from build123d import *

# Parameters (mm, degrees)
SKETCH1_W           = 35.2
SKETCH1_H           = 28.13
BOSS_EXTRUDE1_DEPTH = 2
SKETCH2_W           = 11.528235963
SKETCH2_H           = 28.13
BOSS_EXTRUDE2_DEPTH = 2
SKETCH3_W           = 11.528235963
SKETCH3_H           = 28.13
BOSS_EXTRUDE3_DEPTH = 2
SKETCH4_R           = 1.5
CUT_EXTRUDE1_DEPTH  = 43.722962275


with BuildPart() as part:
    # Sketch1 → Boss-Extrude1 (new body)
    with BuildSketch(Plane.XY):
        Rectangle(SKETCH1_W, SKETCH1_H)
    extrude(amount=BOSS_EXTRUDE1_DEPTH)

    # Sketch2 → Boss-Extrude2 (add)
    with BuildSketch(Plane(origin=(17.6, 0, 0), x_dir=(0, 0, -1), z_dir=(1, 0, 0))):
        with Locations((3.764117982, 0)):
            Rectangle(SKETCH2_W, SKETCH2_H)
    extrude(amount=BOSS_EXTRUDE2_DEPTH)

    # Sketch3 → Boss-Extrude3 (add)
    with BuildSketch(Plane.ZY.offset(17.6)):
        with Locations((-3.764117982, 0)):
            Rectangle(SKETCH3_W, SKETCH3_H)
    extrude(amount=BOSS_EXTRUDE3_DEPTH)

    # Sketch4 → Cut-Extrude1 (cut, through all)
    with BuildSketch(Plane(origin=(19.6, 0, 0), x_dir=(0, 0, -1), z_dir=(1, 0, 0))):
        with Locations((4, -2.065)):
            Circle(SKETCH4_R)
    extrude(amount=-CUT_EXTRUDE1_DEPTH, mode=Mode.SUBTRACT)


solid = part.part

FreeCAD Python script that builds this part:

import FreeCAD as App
import Part
import Sketcher
from FreeCAD import Vector

doc = App.newDocument("Part")
params = doc.addObject("Spreadsheet::Sheet", "Params")
for row, (alias, value) in enumerate([
    ("sketch1_width", "35.2 mm"),
    ("sketch1_height", "28.13 mm"),
    ("pad1_length", "2 mm"),
    ("sketch2_width", "28.13 mm"),
    ("pad2_length", "2 mm"),
    ("sketch3_width", "28.13 mm"),
    ("pad3_length", "2 mm"),
    ("sketch4_diameter", "3 mm"),
], start=1):
    params.set(f"A{row}", alias)
    params.set(f"B{row}", "=" + value)
    params.setAlias(f"B{row}", alias)

body = doc.addObject("PartDesign::Body", "Body")

# Sketch on XY plane
sketch1 = body.newObject("Sketcher::SketchObject", "Sketch")
sketch1.AttachmentSupport = (doc.getObject("XY_Plane"), [""])
sketch1.MapMode = "FlatFace"
sketch1.addGeometry(Part.LineSegment(Vector(-18, 14, 0), Vector(-18, -14, 0)), False)
sketch1.addGeometry(Part.LineSegment(Vector(-18, -14, 0), Vector(18, -14, 0)), False)
sketch1.addGeometry(Part.LineSegment(Vector(18, -14, 0), Vector(18, 14, 0)), False)
sketch1.addGeometry(Part.LineSegment(Vector(18, 14, 0), Vector(-18, 14, 0)), False)
sketch1.addConstraint(Sketcher.Constraint("Coincident", 0, 2, 1, 1))
sketch1.addConstraint(Sketcher.Constraint("Coincident", 1, 2, 2, 1))
sketch1.addConstraint(Sketcher.Constraint("Coincident", 2, 2, 3, 1))
sketch1.addConstraint(Sketcher.Constraint("Coincident", 3, 2, 0, 1))
sketch1.addConstraint(Sketcher.Constraint("Vertical", 0))
sketch1.addConstraint(Sketcher.Constraint("Horizontal", 1))
sketch1.addConstraint(Sketcher.Constraint("Vertical", 2))
sketch1.addConstraint(Sketcher.Constraint("Horizontal", 3))
sketch1.addConstraint(Sketcher.Constraint("Symmetric", 0, 2, 2, 2, -1, 1))
sketch1.addConstraint(Sketcher.Constraint("DistanceX", 1, 1, 1, 2, 35.2))
sketch1.addConstraint(Sketcher.Constraint("DistanceY", 0, 2, 0, 1, 28.13))
sketch1.setExpression("Constraints[9]", "Params.sketch1_width")
sketch1.setExpression("Constraints[10]", "Params.sketch1_height")
pad1 = body.newObject("PartDesign::Pad", "Pad")
pad1.Profile = sketch1
pad1.setExpression("Length", "Params.pad1_length")

# Sketch on YZ plane
sketch2 = body.newObject("Sketcher::SketchObject", "Sketch001")
sketch2.AttachmentSupport = (doc.getObject("YZ_Plane"), [""])
sketch2.MapMode = "FlatFace"
sketch2.AttachmentOffset = App.Placement(Vector(0, 0, 17.6), App.Rotation())
sketch2.addGeometry(Part.LineSegment(Vector(14, 2, 0), Vector(-14, 2, 0)), False)
sketch2.addGeometry(Part.LineSegment(Vector(-14, 2, 0), Vector(-14, -10, 0)), False)
sketch2.addGeometry(Part.LineSegment(Vector(-14, -10, 0), Vector(14, -10, 0)), False)
sketch2.addGeometry(Part.LineSegment(Vector(14, -10, 0), Vector(14, 2, 0)), False)
sketch2.addConstraint(Sketcher.Constraint("Coincident", 0, 2, 1, 1))
sketch2.addConstraint(Sketcher.Constraint("Coincident", 1, 2, 2, 1))
sketch2.addConstraint(Sketcher.Constraint("Coincident", 2, 2, 3, 1))
sketch2.addConstraint(Sketcher.Constraint("Coincident", 3, 2, 0, 1))
sketch2.addConstraint(Sketcher.Constraint("Horizontal", 0))
sketch2.addConstraint(Sketcher.Constraint("Vertical", 1))
sketch2.addConstraint(Sketcher.Constraint("Horizontal", 2))
sketch2.addConstraint(Sketcher.Constraint("Vertical", 3))
sketch2.addConstraint(Sketcher.Constraint("DistanceY", -1, 1, 0, 2, 2.0))
sketch2.addConstraint(Sketcher.Constraint("DistanceX", 0, 2, 0, 1, 28.13))
sketch2.addConstraint(Sketcher.Constraint("DistanceX", 0, 2, -1, 1, 14.065))
sketch2.addConstraint(Sketcher.Constraint("DistanceY", 1, 2, 1, 1, 11.528236))
sketch2.setExpression("Constraints[9]", "Params.sketch2_width")
pad2 = body.newObject("PartDesign::Pad", "Pad001")
pad2.Profile = sketch2
pad2.setExpression("Length", "Params.pad2_length")

# Sketch on YZ plane
sketch3 = body.newObject("Sketcher::SketchObject", "Sketch002")
sketch3.AttachmentSupport = (doc.getObject("YZ_Plane"), [""])
sketch3.MapMode = "FlatFace"
sketch3.AttachmentOffset = App.Placement(Vector(0, 0, -17.6), App.Rotation())
sketch3.addGeometry(Part.LineSegment(Vector(14, -10, 0), Vector(-14, -10, 0)), False)
sketch3.addGeometry(Part.LineSegment(Vector(-14, -10, 0), Vector(-14, 2, 0)), False)
sketch3.addGeometry(Part.LineSegment(Vector(-14, 2, 0), Vector(14, 2, 0)), False)
sketch3.addGeometry(Part.LineSegment(Vector(14, 2, 0), Vector(14, -10, 0)), False)
sketch3.addConstraint(Sketcher.Constraint("Coincident", 0, 2, 1, 1))
sketch3.addConstraint(Sketcher.Constraint("Coincident", 1, 2, 2, 1))
sketch3.addConstraint(Sketcher.Constraint("Coincident", 2, 2, 3, 1))
sketch3.addConstraint(Sketcher.Constraint("Coincident", 3, 2, 0, 1))
sketch3.addConstraint(Sketcher.Constraint("Horizontal", 0))
sketch3.addConstraint(Sketcher.Constraint("Vertical", 1))
sketch3.addConstraint(Sketcher.Constraint("Horizontal", 2))
sketch3.addConstraint(Sketcher.Constraint("Vertical", 3))
sketch3.addConstraint(Sketcher.Constraint("DistanceY", -1, 1, 1, 2, 2.0))
sketch3.addConstraint(Sketcher.Constraint("DistanceX", 0, 2, 0, 1, 28.13))
sketch3.addConstraint(Sketcher.Constraint("DistanceX", 0, 2, -1, 1, 14.065))
sketch3.addConstraint(Sketcher.Constraint("DistanceY", 1, 1, 1, 2, 11.528236))
sketch3.setExpression("Constraints[9]", "Params.sketch3_width")
pad3 = body.newObject("PartDesign::Pad", "Pad002")
pad3.Profile = sketch3
pad3.setExpression("Length", "Params.pad3_length")
pad3.Reversed = True

# Sketch on YZ plane
sketch4 = body.newObject("Sketcher::SketchObject", "Sketch003")
sketch4.AttachmentSupport = (doc.getObject("YZ_Plane"), [""])
sketch4.MapMode = "FlatFace"
sketch4.AttachmentOffset = App.Placement(Vector(0, 0, 19.6), App.Rotation())
sketch4.addGeometry(Part.Circle(Vector(-2.1, -4, 0), Vector(0, 0, 1), 1.5), False)
sketch4.addConstraint(Sketcher.Constraint("Diameter", 0, 3.0))
sketch4.addConstraint(Sketcher.Constraint("DistanceY", 0, 3, -1, 1, 4.0))
sketch4.addConstraint(Sketcher.Constraint("DistanceX", 0, 3, -1, 1, 2.065))
sketch4.setExpression("Constraints[0]", "Params.sketch4_diameter")
pocket1 = body.newObject("PartDesign::Pocket", "Pocket")
pocket1.Profile = sketch4
pocket1.Type = "ThroughAll"

doc.recompute()
